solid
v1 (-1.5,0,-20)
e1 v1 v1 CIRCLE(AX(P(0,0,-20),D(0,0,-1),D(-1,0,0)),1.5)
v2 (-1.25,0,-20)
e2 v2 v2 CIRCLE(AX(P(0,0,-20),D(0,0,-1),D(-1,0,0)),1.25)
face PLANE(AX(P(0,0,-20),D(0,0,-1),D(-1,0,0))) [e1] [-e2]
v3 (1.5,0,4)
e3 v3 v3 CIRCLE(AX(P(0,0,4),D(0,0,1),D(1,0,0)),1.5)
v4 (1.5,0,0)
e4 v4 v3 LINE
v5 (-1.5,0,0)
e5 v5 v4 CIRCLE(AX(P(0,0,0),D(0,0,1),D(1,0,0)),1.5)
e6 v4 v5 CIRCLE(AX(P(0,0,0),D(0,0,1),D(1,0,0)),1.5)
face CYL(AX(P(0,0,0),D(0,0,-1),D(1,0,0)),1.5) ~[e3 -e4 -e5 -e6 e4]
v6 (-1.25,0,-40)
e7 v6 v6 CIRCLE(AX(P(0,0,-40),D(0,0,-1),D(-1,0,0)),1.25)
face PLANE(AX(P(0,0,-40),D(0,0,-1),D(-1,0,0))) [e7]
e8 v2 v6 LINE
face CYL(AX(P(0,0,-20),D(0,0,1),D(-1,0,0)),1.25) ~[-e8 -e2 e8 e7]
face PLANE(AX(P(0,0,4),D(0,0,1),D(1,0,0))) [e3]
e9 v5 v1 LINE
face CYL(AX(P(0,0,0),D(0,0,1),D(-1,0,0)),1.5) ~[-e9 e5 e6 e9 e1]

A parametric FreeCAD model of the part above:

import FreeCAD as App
import Part
import Sketcher
Q = App.Units.Quantity

doc = App.newDocument("Part")
body = doc.addObject("PartDesign::Body", "Body")

# Sketch on XY plane
sketch1 = doc.addObject("Sketcher::SketchObject", "Sketch")
body.addObject(sketch1)
sketch1.AttachmentSupport = (doc.XY_Plane, [""])
sketch1.MapMode = "FlatFace"
sketch1.addGeometry(Part.Circle(App.Vector(0, 0, 0), App.Vector(0, 0, 1), 1.5), False)
sketch1.addConstraint(Sketcher.Constraint("Coincident", 0, 3, -1, 1))
sketch1.addConstraint(Sketcher.Constraint("Diameter", 0, Q("3 mm")))
pad1 = doc.addObject("PartDesign::Pad", "Pad")
body.addObject(pad1)
pad1.Profile = sketch1
pad1.Length = 4

# Sketch on XY plane
sketch2 = doc.addObject("Sketcher::SketchObject", "Sketch001")
body.addObject(sketch2)
sketch2.AttachmentSupport = (doc.XY_Plane, [""])
sketch2.MapMode = "FlatFace"
sketch2.addGeometry(Part.Circle(App.Vector(0, 0, 0), App.Vector(0, 0, 1), 1.5), False)
sketch2.addConstraint(Sketcher.Constraint("Coincident", 0, 3, -1, 1))
sketch2.addConstraint(Sketcher.Constraint("Diameter", 0, Q("3 mm")))
pad2 = doc.addObject("PartDesign::Pad", "Pad001")
body.addObject(pad2)
pad2.Profile = sketch2
pad2.Length = 20
pad2.Reversed = True

# Sketch on XY plane
sketch3 = doc.addObject("Sketcher::SketchObject", "Sketch002")
body.addObject(sketch3)
sketch3.AttachmentSupport = (doc.XY_Plane, [""])
sketch3.MapMode = "FlatFace"
sketch3.AttachmentOffset = App.Placement(App.Vector(0, 0, -20), App.Rotation())
sketch3.addGeometry(Part.Circle(App.Vector(0, 0, 0), App.Vector(0, 0, 1), 1.2), False)
sketch3.addConstraint(Sketcher.Constraint("Coincident", 0, 3, -1, 1))
sketch3.addConstraint(Sketcher.Constraint("Diameter", 0, Q("2.5 mm")))
pad3 = doc.addObject("PartDesign::Pad", "Pad002")
body.addObject(pad3)
pad3.Profile = sketch3
pad3.Length = 20
pad3.Reversed = True

doc.recompute()
